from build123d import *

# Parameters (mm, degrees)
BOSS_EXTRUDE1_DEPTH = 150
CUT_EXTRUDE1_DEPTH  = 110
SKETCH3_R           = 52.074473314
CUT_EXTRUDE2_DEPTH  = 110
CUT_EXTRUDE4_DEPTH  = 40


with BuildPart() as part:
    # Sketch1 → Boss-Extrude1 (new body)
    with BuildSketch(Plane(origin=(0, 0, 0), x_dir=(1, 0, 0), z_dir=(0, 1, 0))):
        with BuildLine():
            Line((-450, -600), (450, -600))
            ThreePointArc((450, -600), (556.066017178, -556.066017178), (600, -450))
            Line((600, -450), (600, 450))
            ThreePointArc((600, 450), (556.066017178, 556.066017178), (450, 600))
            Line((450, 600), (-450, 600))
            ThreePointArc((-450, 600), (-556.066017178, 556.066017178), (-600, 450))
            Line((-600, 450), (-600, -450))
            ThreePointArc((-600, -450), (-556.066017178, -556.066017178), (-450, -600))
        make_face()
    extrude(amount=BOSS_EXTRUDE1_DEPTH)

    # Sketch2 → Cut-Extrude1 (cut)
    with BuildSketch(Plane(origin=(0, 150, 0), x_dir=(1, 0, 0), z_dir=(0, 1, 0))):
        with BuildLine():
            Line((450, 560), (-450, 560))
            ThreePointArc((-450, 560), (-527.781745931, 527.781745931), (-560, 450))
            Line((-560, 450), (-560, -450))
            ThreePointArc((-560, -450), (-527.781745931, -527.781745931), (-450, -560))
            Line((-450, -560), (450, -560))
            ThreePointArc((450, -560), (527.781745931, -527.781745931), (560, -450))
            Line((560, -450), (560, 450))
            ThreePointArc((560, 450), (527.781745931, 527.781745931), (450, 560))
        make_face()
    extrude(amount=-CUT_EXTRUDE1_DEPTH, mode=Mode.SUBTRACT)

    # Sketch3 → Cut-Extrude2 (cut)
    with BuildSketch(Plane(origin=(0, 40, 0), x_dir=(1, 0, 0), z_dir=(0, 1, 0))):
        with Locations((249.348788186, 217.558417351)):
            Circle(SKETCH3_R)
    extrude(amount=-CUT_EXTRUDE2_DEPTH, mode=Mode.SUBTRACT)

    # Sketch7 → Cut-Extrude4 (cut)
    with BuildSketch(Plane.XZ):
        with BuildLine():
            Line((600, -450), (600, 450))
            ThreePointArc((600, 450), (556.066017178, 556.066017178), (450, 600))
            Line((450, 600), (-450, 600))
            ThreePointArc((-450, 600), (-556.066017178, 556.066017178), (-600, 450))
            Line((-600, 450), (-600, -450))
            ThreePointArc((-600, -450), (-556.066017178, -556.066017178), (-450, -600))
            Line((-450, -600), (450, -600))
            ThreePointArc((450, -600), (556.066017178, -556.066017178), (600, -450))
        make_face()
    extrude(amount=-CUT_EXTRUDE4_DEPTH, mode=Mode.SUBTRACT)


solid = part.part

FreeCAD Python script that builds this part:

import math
import FreeCAD as App
import Part
import Sketcher
Q = App.Units.Quantity

doc = App.newDocument("Part")
body = doc.addObject("PartDesign::Body", "Body")

sketch1 = body.newObject("Sketcher::SketchObject", "Sketch")
sketch1.AttachmentSupport = (doc.getObject("XZ_Plane"), [""])
sketch1.MapMode = "FlatFace"
sketch1.addGeometry(Part.LineSegment(App.Vector(-450, 600, 0), App.Vector(450, 600, 0)), False)
sketch1.addGeometry(Part.ArcOfCircle(Part.Circle(App.Vector(450, 450, 0), App.Vector(0, 0, 1), 150), math.radians(0), math.radians(90)), False)
sketch1.addGeometry(Part.LineSegment(App.Vector(600, 450, 0), App.Vector(600, -450, 0)), False)
sketch1.addGeometry(Part.ArcOfCircle(Part.Circle(App.Vector(450, -450, 0), App.Vector(0, 0, 1), 150), math.radians(-90), math.radians(0)), False)
sketch1.addGeometry(Part.LineSegment(App.Vector(450, -600, 0), App.Vector(-450, -600, 0)), False)
sketch1.addGeometry(Part.ArcOfCircle(Part.Circle(App.Vector(-450, -450, 0), App.Vector(0, 0, 1), 150), math.radians(180), math.radians(270)), False)
sketch1.addGeometry(Part.LineSegment(App.Vector(-600, -450, 0), App.Vector(-600, 450, 0)), False)
sketch1.addGeometry(Part.ArcOfCircle(Part.Circle(App.Vector(-450, 450, 0), App.Vector(0, 0, 1), 150), math.radians(90), math.radians(180)), False)
sketch1.addConstraint(Sketcher.Constraint("Tangent", 0, 2, 1, 2))
sketch1.addConstraint(Sketcher.Constraint("Tangent", 1, 1, 2, 1))
sketch1.addConstraint(Sketcher.Constraint("Tangent", 2, 2, 3, 2))
sketch1.addConstraint(Sketcher.Constraint("Tangent", 3, 1, 4, 1))
sketch1.addConstraint(Sketcher.Constraint("Tangent", 4, 2, 5, 2))
sketch1.addConstraint(Sketcher.Constraint("Tangent", 5, 1, 6, 1))
sketch1.addConstraint(Sketcher.Constraint("Tangent", 6, 2, 7, 2))
sketch1.addConstraint(Sketcher.Constraint("Tangent", 7, 1, 0, 1))
sketch1.addConstraint(Sketcher.Constraint("Horizontal", 0))
sketch1.addConstraint(Sketcher.Constraint("Vertical", 2))
sketch1.addConstraint(Sketcher.Constraint("Horizontal", 4))
sketch1.addConstraint(Sketcher.Constraint("Vertical", 6))
sketch1.addConstraint(Sketcher.Constraint("Equal", 1, 3))
sketch1.addConstraint(Sketcher.Constraint("Equal", 3, 5))
sketch1.addConstraint(Sketcher.Constraint("Equal", 5, 7))
sketch1.addConstraint(Sketcher.Constraint("Symmetric", 1, 3, 5, 3, -1, 1))
sketch1.addConstraint(Sketcher.Constraint("Equal", 4, 2))
sketch1.addConstraint(Sketcher.Constraint("Radius", 1, Q("150 mm")))
sketch1.addConstraint(Sketcher.Constraint("DistanceX", 0, 1, 0, 2, Q("900 mm")))
pad1 = body.newObject("PartDesign::Pad", "Pad")
pad1.Profile = sketch1
pad1.Length = 150
pad1.Reversed = True

sketch2 = body.newObject("Sketcher::SketchObject", "Sketch001")
sketch2.AttachmentSupport = (doc.getObject("XZ_Plane"), [""])
sketch2.MapMode = "FlatFace"
sketch2.AttachmentOffset = App.Placement(App.Vector(0, 0, -150), App.Rotation())
sketch2.addGeometry(Part.LineSegment(App.Vector(450, -560, 0), App.Vector(-450, -560, 0)), False)
sketch2.addGeometry(Part.ArcOfCircle(Part.Circle(App.Vector(-450, -450, 0), App.Vector(0, 0, 1), 110), math.radians(180), math.radians(270)), False)
sketch2.addGeometry(Part.LineSegment(App.Vector(-560, -450, 0), App.Vector(-560, 450, 0)), False)
sketch2.addGeometry(Part.ArcOfCircle(Part.Circle(App.Vector(-450, 450, 0), App.Vector(0, 0, 1), 110), math.radians(90), math.radians(180)), False)
sketch2.addGeometry(Part.LineSegment(App.Vector(-450, 560, 0), App.Vector(450, 560, 0)), False)
sketch2.addGeometry(Part.ArcOfCircle(Part.Circle(App.Vector(450, 450, 0), App.Vector(0, 0, 1), 110), math.radians(0), math.radians(90)), False)
sketch2.addGeometry(Part.LineSegment(App.Vector(560, 450, 0), App.Vector(560, -450, 0)), False)
sketch2.addGeometry(Part.ArcOfCircle(Part.Circle(App.Vector(450, -450, 0), App.Vector(0, 0, 1), 110), math.radians(-90), math.radians(0)), False)
sketch2.addConstraint(Sketcher.Constraint("Tangent", 0, 2, 1, 2))
sketch2.addConstraint(Sketcher.Constraint("Tangent", 1, 1, 2, 1))
sketch2.addConstraint(Sketcher.Constraint("Tangent", 2, 2, 3, 2))
sketch2.addConstraint(Sketcher.Constraint("Tangent", 3, 1, 4, 1))
sketch2.addConstraint(Sketcher.Constraint("Tangent", 4, 2, 5, 2))
sketch2.addConstraint(Sketcher.Constraint("Tangent", 5, 1, 6, 1))
sketch2.addConstraint(Sketcher.Constraint("Tangent", 6, 2, 7, 2))
sketch2.addConstraint(Sketcher.Constraint("Tangent", 7, 1, 0, 1))
sketch2.addConstraint(Sketcher.Constraint("Horizontal", 0))
sketch2.addConstraint(Sketcher.Constraint("Vertical", 2))
sketch2.addConstraint(Sketcher.Constraint("Horizontal", 4))
sketch2.addConstraint(Sketcher.Constraint("Vertical", 6))
sketch2.addConstraint(Sketcher.Constraint("Equal", 1, 3))
sketch2.addConstraint(Sketcher.Constraint("Equal", 3, 5))
sketch2.addConstraint(Sketcher.Constraint("Equal", 5, 7))
sketch2.addConstraint(Sketcher.Constraint("Symmetric", 1, 3, 5, 3, -1, 1))
sketch2.addConstraint(Sketcher.Constraint("Equal", 4, 2))
sketch2.addConstraint(Sketcher.Constraint("Radius", 1, Q("110 mm")))
sketch2.addConstraint(Sketcher.Constraint("DistanceX", 0, 2, 0, 1, Q("900 mm")))
pocket1 = body.newObject("PartDesign::Pocket", "Pocket")
pocket1.Profile = sketch2
pocket1.Length = 110
pocket1.Reversed = True

sketch3 = body.newObject("Sketcher::SketchObject", "Sketch002")
sketch3.AttachmentSupport = (doc.getObject("XZ_Plane"), [""])
sketch3.MapMode = "FlatFace"
sketch3.AttachmentOffset = App.Placement(App.Vector(0, 0, -40), App.Rotation())
sketch3.addGeometry(Part.Circle(App.Vector(249, -218, 0), App.Vector(0, 0, 1), 52), False)
sketch3.addConstraint(Sketcher.Constraint("Diameter", 0, Q("104.148947 mm")))
sketch3.addConstraint(Sketcher.Constraint("DistanceX", -1, 1, 0, 3, Q("249.348788 mm")))
sketch3.addConstraint(Sketcher.Constraint("DistanceY", 0, 3, -1, 1, Q("217.558417 mm")))
pocket2 = body.newObject("PartDesign::Pocket", "Pocket001")
pocket2.Profile = sketch3
pocket2.Length = 110
pocket2.Reversed = True

sketch4 = body.newObject("Sketcher::SketchObject", "Sketch003")
sketch4.AttachmentSupport = (doc.getObject("XZ_Plane"), [""])
sketch4.MapMode = "FlatFace"
sketch4.addGeometry(Part.LineSegment(App.Vector(600, -450, 0), App.Vector(600, 450, 0)), False)
sketch4.addGeometry(Part.ArcOfCircle(Part.Circle(App.Vector(450, 450, 0), App.Vector(0, 0, 1), 150), math.radians(0), math.radians(90)), False)
sketch4.addGeometry(Part.LineSegment(App.Vector(450, 600, 0), App.Vector(-450, 600, 0)), False)
sketch4.addGeometry(Part.ArcOfCircle(Part.Circle(App.Vector(-450, 450, 0), App.Vector(0, 0, 1), 150), math.radians(90), math.radians(180)), False)
sketch4.addGeometry(Part.LineSegment(App.Vector(-600, 450, 0), App.Vector(-600, -450, 0)), False)
sketch4.addGeometry(Part.ArcOfCircle(Part.Circle(App.Vector(-450, -450, 0), App.Vector(0, 0, 1), 150), math.radians(180), math.radians(270)), False)
sketch4.addGeometry(Part.LineSegment(App.Vector(-450, -600, 0), App.Vector(450, -600, 0)), False)
sketch4.addGeometry(Part.ArcOfCircle(Part.Circle(App.Vector(450, -450, 0), App.Vector(0, 0, 1), 150), math.radians(-90), math.radians(0)), False)
sketch4.addConstraint(Sketcher.Constraint("Tangent", 0, 2, 1, 1))
sketch4.addConstraint(Sketcher.Constraint("Tangent", 1, 2, 2, 1))
sketch4.addConstraint(Sketcher.Constraint("Tangent", 2, 2, 3, 1))
sketch4.addConstraint(Sketcher.Constraint("Tangent", 3, 2, 4, 1))
sketch4.addConstraint(Sketcher.Constraint("Tangent", 4, 2, 5, 1))
sketch4.addConstraint(Sketcher.Constraint("Tangent", 5, 2, 6, 1))
sketch4.addConstraint(Sketcher.Constraint("Tangent", 6, 2, 7, 1))
sketch4.addConstraint(Sketcher.Constraint("Tangent", 7, 2, 0, 1))
sketch4.addConstraint(Sketcher.Constraint("Vertical", 0))
sketch4.addConstraint(Sketcher.Constraint("Horizontal", 2))
sketch4.addConstraint(Sketcher.Constraint("Vertical", 4))
sketch4.addConstraint(Sketcher.Constraint("Horizontal", 6))
sketch4.addConstraint(Sketcher.Constraint("Equal", 1, 3))
sketch4.addConstraint(Sketcher.Constraint("Equal", 3, 5))
sketch4.addConstraint(Sketcher.Constraint("Equal", 5, 7))
sketch4.addConstraint(Sketcher.Constraint("Symmetric", 1, 3, 5, 3, -1, 1))
sketch4.addConstraint(Sketcher.Constraint("Equal", 6, 0))
sketch4.addConstraint(Sketcher.Constraint("Radius", 1, Q("150 mm")))
sketch4.addConstraint(Sketcher.Constraint("DistanceX", 2, 2, 2, 1, Q("900 mm")))
pocket3 = body.newObject("PartDesign::Pocket", "Pocket002")
pocket3.Profile = sketch4
pocket3.Length = 40

doc.recompute()
